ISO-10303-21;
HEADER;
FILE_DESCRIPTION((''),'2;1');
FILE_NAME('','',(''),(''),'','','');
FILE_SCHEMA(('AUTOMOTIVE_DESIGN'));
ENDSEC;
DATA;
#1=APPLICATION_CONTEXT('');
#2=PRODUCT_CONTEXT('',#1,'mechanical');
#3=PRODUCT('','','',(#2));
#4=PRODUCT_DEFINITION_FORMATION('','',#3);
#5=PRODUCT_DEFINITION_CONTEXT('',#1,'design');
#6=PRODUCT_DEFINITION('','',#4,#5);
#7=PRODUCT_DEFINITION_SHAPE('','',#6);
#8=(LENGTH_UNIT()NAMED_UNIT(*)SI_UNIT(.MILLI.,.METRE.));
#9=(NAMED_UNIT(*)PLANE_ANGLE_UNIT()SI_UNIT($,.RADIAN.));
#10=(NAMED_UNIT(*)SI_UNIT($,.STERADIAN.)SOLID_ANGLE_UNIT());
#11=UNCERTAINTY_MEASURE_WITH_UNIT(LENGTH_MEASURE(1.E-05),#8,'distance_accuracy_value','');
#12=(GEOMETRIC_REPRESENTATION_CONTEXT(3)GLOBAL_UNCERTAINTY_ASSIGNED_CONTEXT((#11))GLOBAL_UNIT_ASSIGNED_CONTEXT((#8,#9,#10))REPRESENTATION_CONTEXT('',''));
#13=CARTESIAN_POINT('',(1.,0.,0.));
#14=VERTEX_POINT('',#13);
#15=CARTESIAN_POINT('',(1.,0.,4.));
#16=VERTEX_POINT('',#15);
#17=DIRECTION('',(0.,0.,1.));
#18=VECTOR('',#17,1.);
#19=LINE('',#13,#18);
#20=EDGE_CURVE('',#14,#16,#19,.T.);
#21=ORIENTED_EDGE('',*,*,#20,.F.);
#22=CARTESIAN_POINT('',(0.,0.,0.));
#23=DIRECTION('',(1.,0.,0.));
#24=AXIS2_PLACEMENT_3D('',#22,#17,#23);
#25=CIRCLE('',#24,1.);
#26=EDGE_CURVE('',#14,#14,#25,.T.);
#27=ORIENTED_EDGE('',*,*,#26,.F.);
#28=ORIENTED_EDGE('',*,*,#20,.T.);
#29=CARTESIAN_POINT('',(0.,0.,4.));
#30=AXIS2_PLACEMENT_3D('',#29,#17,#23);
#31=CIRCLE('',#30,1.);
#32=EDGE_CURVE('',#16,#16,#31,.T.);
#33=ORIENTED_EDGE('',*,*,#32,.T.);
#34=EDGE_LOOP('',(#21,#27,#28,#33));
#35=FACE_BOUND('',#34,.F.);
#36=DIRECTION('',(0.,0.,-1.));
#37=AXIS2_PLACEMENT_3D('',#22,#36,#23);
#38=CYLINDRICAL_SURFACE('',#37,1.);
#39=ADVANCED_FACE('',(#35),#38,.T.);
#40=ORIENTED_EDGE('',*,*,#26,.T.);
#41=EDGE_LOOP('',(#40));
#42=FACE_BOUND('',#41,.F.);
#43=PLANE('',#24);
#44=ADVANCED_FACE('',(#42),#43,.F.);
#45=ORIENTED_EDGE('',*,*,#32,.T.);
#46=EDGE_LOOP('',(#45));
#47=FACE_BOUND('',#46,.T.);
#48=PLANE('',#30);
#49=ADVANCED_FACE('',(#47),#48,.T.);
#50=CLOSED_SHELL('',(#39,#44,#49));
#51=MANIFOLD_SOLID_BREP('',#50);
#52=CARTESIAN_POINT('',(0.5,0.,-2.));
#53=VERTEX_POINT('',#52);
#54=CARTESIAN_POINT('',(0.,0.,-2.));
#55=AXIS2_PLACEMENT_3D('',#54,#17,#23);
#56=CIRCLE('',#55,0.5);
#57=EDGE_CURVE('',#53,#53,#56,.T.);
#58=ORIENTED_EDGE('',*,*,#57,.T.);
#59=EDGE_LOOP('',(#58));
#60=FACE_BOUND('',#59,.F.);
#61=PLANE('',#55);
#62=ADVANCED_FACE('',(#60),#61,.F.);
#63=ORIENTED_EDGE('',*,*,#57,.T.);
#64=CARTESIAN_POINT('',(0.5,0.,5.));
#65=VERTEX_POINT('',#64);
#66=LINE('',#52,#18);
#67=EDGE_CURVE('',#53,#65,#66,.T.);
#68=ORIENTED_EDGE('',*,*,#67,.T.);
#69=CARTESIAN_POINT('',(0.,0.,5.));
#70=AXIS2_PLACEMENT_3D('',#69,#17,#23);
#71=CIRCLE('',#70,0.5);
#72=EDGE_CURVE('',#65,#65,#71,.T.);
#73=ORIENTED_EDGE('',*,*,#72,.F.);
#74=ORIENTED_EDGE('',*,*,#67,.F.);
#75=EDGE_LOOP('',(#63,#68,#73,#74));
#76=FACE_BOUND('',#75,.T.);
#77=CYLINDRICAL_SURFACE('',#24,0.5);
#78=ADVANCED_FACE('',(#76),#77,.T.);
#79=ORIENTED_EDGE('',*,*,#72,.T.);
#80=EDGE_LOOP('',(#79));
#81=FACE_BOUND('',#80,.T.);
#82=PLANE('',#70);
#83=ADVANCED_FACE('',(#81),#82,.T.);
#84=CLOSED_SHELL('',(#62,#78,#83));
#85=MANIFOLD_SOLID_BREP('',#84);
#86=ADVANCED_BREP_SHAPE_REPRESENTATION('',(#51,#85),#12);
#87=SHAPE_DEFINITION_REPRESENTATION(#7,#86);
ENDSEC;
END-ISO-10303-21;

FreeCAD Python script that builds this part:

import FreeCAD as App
import Part
import Sketcher

V = App.Vector
Q = App.Units.Quantity

doc = App.newDocument("Part")
params = doc.addObject("Spreadsheet::Sheet", "Params")
for row, (alias, value) in enumerate([
    ("sketch1_diameter", "1 mm"),
    ("pad1_length", "5 mm"),
    ("pad1_length2", "2 mm"),
    ("sketch2_diameter", "2 mm"),
    ("pad2_length", "4 mm"),
], start=1):
    params.set(f"A{row}", alias)
    params.set(f"B{row}", "=" + value)
    params.setAlias(f"B{row}", alias)

body = doc.addObject("PartDesign::Body", "Body")

sketch1 = doc.addObject("Sketcher::SketchObject", "Sketch")
body.addObject(sketch1)
sketch1.AttachmentSupport = (doc.XY_Plane, [""])
sketch1.MapMode = "FlatFace"
sketch1.addGeometry(Part.Circle(V(0, 0, 0), V(0, 0, 1), 0.5), False)
sketch1.addConstraint([
    Sketcher.Constraint("Coincident", 0, 3, -1, 1),
    Sketcher.Constraint("Diameter", 0, Q("1 mm")),
])
sketch1.setExpression("Constraints[1]", "Params.sketch1_diameter")
pad1 = doc.addObject("PartDesign::Pad", "Pad")
body.addObject(pad1)
pad1.Profile = sketch1
pad1.Type = "TwoLengths"
pad1.setExpression("Length", "Params.pad1_length")
pad1.setExpression("Length2", "Params.pad1_length2")
body2 = doc.addObject("PartDesign::Body", "Body001")

sketch2 = doc.addObject("Sketcher::SketchObject", "Sketch001")
body2.addObject(sketch2)
sketch2.AttachmentSupport = (doc.getObject("XY_Plane001"), [""])
sketch2.MapMode = "FlatFace"
sketch2.addGeometry(Part.Circle(V(0, 0, 0), V(0, 0, 1), 1), False)
sketch2.addConstraint([
    Sketcher.Constraint("Coincident", 0, 3, -1, 1),
    Sketcher.Constraint("Diameter", 0, Q("2 mm")),
])
sketch2.setExpression("Constraints[1]", "Params.sketch2_diameter")
pad2 = doc.addObject("PartDesign::Pad", "Pad001")
body2.addObject(pad2)
pad2.Profile = sketch2
pad2.setExpression("Length", "Params.pad2_length")

doc.recompute()
